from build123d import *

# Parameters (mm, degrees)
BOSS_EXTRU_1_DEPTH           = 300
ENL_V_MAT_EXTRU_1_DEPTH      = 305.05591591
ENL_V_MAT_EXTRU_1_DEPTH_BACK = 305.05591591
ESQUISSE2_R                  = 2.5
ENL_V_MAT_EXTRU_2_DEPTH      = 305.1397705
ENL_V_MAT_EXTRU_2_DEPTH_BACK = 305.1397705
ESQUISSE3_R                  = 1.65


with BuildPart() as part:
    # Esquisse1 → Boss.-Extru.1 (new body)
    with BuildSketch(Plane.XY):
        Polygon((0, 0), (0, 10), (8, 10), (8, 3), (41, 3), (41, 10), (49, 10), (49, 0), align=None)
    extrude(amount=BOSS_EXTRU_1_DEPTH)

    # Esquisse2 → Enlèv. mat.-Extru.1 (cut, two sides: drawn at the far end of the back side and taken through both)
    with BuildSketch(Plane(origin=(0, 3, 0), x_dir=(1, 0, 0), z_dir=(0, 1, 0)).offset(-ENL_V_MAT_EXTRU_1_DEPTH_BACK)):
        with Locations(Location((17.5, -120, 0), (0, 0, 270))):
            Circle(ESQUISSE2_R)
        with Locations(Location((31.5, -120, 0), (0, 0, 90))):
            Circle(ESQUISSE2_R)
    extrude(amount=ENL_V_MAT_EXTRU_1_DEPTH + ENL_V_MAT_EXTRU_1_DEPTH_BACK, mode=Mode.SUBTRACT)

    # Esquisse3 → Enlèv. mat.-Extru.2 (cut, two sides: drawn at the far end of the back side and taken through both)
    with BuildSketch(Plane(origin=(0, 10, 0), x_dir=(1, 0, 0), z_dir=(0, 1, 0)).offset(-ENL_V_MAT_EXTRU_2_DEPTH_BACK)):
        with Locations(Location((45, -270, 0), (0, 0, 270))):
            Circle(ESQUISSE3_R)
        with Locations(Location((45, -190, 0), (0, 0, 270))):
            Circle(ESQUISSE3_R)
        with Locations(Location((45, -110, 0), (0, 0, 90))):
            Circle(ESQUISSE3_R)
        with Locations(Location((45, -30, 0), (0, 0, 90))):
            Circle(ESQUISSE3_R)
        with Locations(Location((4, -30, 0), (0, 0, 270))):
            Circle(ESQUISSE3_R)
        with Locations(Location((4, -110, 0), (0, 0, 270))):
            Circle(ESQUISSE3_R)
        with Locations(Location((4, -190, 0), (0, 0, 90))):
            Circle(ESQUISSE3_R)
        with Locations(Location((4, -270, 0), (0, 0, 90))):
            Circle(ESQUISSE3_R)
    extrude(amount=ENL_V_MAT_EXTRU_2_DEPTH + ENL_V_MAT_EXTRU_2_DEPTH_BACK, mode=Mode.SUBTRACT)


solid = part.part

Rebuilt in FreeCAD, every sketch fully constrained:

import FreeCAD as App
import Part
import Sketcher
from FreeCAD import Vector
Q = App.Units.Quantity

doc = App.newDocument("Part")
body = doc.addObject("PartDesign::Body", "Body")

sketch1 = body.newObject("Sketcher::SketchObject", "Sketch")
sketch1.AttachmentSupport = (doc.getObject("XY_Plane"), [""])
sketch1.MapMode = "FlatFace"
sketch1.addGeometry(Part.LineSegment(Vector(0, 10, 0), Vector(0, 0, 0)), False)
sketch1.addGeometry(Part.LineSegment(Vector(0, 0, 0), Vector(49, 0, 0)), False)
sketch1.addGeometry(Part.LineSegment(Vector(49, 0, 0), Vector(49, 10, 0)), False)
sketch1.addGeometry(Part.LineSegment(Vector(49, 10, 0), Vector(41, 10, 0)), False)
sketch1.addGeometry(Part.LineSegment(Vector(41, 10, 0), Vector(41, 3, 0)), False)
sketch1.addGeometry(Part.LineSegment(Vector(41, 3, 0), Vector(8, 3, 0)), False)
sketch1.addGeometry(Part.LineSegment(Vector(8, 3, 0), Vector(8, 10, 0)), False)
sketch1.addGeometry(Part.LineSegment(Vector(8, 10, 0), Vector(0, 10, 0)), False)
sketch1.addConstraint(Sketcher.Constraint("Coincident", 0, 2, 1, 1))
sketch1.addConstraint(Sketcher.Constraint("Coincident", 1, 2, 2, 1))
sketch1.addConstraint(Sketcher.Constraint("Coincident", 2, 2, 3, 1))
sketch1.addConstraint(Sketcher.Constraint("Coincident", 3, 2, 4, 1))
sketch1.addConstraint(Sketcher.Constraint("Coincident", 4, 2, 5, 1))
sketch1.addConstraint(Sketcher.Constraint("Coincident", 5, 2, 6, 1))
sketch1.addConstraint(Sketcher.Constraint("Coincident", 6, 2, 7, 1))
sketch1.addConstraint(Sketcher.Constraint("Coincident", 7, 2, 0, 1))
sketch1.addConstraint(Sketcher.Constraint("Vertical", 0))
sketch1.addConstraint(Sketcher.Constraint("Horizontal", 1))
sketch1.addConstraint(Sketcher.Constraint("Vertical", 2))
sketch1.addConstraint(Sketcher.Constraint("Horizontal", 3))
sketch1.addConstraint(Sketcher.Constraint("Vertical", 4))
sketch1.addConstraint(Sketcher.Constraint("Horizontal", 5))
sketch1.addConstraint(Sketcher.Constraint("Vertical", 6))
sketch1.addConstraint(Sketcher.Constraint("Horizontal", 7))
sketch1.addConstraint(Sketcher.Constraint("Coincident", 0, 2, -1, 1))
sketch1.addConstraint(Sketcher.Constraint("Horizontal", 3, 2, 6, 2))
sketch1.addConstraint(Sketcher.Constraint("Equal", 3, 7))
sketch1.addConstraint(Sketcher.Constraint("DistanceX", 1, 1, 1, 2, Q("49 mm")))
sketch1.addConstraint(Sketcher.Constraint("DistanceX", 3, 2, 3, 1, Q("8 mm")))
sketch1.addConstraint(Sketcher.Constraint("DistanceY", 0, 2, 0, 1, Q("10 mm")))
sketch1.addConstraint(Sketcher.Constraint("DistanceY", 4, 2, 4, 1, Q("7 mm")))
pad1 = body.newObject("PartDesign::Pad", "Pad")
pad1.Profile = sketch1
pad1.Length = 300

sketch2 = body.newObject("Sketcher::SketchObject", "Sketch001")
sketch2.AttachmentSupport = (doc.getObject("XZ_Plane"), [""])
sketch2.MapMode = "FlatFace"
sketch2.AttachmentOffset = App.Placement(Vector(0, 0, -3), App.Rotation())
sketch2.addGeometry(Part.Circle(Vector(17.5, 120, 0), Vector(0, 0, 1), 2.5), False)
sketch2.addGeometry(Part.Circle(Vector(31.5, 120, 0), Vector(0, 0, 1), 2.5), False)
sketch2.addConstraint(Sketcher.Constraint("Equal", 0, 1))
sketch2.addConstraint(Sketcher.Constraint("Horizontal", 0, 3, 1, 3))
sketch2.addConstraint(Sketcher.Constraint("Diameter", 0, Q("5 mm")))
sketch2.addConstraint(Sketcher.Constraint("DistanceY", -1, 1, 0, 3, Q("120 mm")))
sketch2.addConstraint(Sketcher.Constraint("DistanceX", 0, 3, 1, 3, Q("14 mm")))
sketch2.addConstraint(Sketcher.Constraint("DistanceX", -1, 1, 0, 3, Q("17.5 mm")))
pocket1 = body.newObject("PartDesign::Pocket", "Pocket")
pocket1.Profile = sketch2
pocket1.Type = "ThroughAll"
pocket1.Midplane = True

sketch3 = body.newObject("Sketcher::SketchObject", "Sketch002")
sketch3.AttachmentSupport = (doc.getObject("XZ_Plane"), [""])
sketch3.MapMode = "FlatFace"
sketch3.AttachmentOffset = App.Placement(Vector(0, 0, -10), App.Rotation())
sketch3.addGeometry(Part.Circle(Vector(45, 270, 0), Vector(0, 0, 1), 1.65), False)
sketch3.addGeometry(Part.Circle(Vector(45, 190, 0), Vector(0, 0, 1), 1.65), False)
sketch3.addGeometry(Part.Circle(Vector(45, 110, 0), Vector(0, 0, 1), 1.65), False)
sketch3.addGeometry(Part.Circle(Vector(45, 30, 0), Vector(0, 0, 1), 1.65), False)
sketch3.addGeometry(Part.Circle(Vector(4, 30, 0), Vector(0, 0, 1), 1.65), False)
sketch3.addGeometry(Part.Circle(Vector(4, 110, 0), Vector(0, 0, 1), 1.65), False)
sketch3.addGeometry(Part.Circle(Vector(4, 190, 0), Vector(0, 0, 1), 1.65), False)
sketch3.addGeometry(Part.Circle(Vector(4, 270, 0), Vector(0, 0, 1), 1.65), False)
sketch3.addConstraint(Sketcher.Constraint("Equal", 0, 1))
sketch3.addConstraint(Sketcher.Constraint("Equal", 1, 2))
sketch3.addConstraint(Sketcher.Constraint("Equal", 2, 3))
sketch3.addConstraint(Sketcher.Constraint("Equal", 3, 4))
sketch3.addConstraint(Sketcher.Constraint("Equal", 4, 5))
sketch3.addConstraint(Sketcher.Constraint("Equal", 5, 6))
sketch3.addConstraint(Sketcher.Constraint("Equal", 6, 7))
sketch3.addConstraint(Sketcher.Constraint("Horizontal", 3, 3, 4, 3))
sketch3.addConstraint(Sketcher.Constraint("Horizontal", 2, 3, 5, 3))
sketch3.addConstraint(Sketcher.Constraint("Horizontal", 1, 3, 6, 3))
sketch3.addConstraint(Sketcher.Constraint("Horizontal", 0, 3, 7, 3))
sketch3.addConstraint(Sketcher.Constraint("Vertical", 0, 3, 1, 3))
sketch3.addConstraint(Sketcher.Constraint("Vertical", 1, 3, 2, 3))
sketch3.addConstraint(Sketcher.Constraint("Vertical", 2, 3, 3, 3))
sketch3.addConstraint(Sketcher.Constraint("Vertical", 4, 3, 5, 3))
sketch3.addConstraint(Sketcher.Constraint("Vertical", 5, 3, 6, 3))
sketch3.addConstraint(Sketcher.Constraint("Vertical", 6, 3, 7, 3))
sketch3.addConstraint(Sketcher.Constraint("Diameter", 0, Q("3.3 mm")))
sketch3.addConstraint(Sketcher.Constraint("DistanceX", -1, 1, 0, 3, Q("45 mm")))
sketch3.addConstraint(Sketcher.Constraint("DistanceY", -1, 1, 0, 3, Q("270 mm")))
sketch3.addConstraint(Sketcher.Constraint("DistanceY", -1, 1, 1, 3, Q("190 mm")))
sketch3.addConstraint(Sketcher.Constraint("DistanceY", -1, 1, 2, 3, Q("110 mm")))
sketch3.addConstraint(Sketcher.Constraint("DistanceY", -1, 1, 3, 3, Q("30 mm")))
sketch3.addConstraint(Sketcher.Constraint("DistanceX", -1, 1, 4, 3, Q("4 mm")))
pocket2 = body.newObject("PartDesign::Pocket", "Pocket001")
pocket2.Profile = sketch3
pocket2.Type = "ThroughAll"
pocket2.Midplane = True

doc.recompute()
